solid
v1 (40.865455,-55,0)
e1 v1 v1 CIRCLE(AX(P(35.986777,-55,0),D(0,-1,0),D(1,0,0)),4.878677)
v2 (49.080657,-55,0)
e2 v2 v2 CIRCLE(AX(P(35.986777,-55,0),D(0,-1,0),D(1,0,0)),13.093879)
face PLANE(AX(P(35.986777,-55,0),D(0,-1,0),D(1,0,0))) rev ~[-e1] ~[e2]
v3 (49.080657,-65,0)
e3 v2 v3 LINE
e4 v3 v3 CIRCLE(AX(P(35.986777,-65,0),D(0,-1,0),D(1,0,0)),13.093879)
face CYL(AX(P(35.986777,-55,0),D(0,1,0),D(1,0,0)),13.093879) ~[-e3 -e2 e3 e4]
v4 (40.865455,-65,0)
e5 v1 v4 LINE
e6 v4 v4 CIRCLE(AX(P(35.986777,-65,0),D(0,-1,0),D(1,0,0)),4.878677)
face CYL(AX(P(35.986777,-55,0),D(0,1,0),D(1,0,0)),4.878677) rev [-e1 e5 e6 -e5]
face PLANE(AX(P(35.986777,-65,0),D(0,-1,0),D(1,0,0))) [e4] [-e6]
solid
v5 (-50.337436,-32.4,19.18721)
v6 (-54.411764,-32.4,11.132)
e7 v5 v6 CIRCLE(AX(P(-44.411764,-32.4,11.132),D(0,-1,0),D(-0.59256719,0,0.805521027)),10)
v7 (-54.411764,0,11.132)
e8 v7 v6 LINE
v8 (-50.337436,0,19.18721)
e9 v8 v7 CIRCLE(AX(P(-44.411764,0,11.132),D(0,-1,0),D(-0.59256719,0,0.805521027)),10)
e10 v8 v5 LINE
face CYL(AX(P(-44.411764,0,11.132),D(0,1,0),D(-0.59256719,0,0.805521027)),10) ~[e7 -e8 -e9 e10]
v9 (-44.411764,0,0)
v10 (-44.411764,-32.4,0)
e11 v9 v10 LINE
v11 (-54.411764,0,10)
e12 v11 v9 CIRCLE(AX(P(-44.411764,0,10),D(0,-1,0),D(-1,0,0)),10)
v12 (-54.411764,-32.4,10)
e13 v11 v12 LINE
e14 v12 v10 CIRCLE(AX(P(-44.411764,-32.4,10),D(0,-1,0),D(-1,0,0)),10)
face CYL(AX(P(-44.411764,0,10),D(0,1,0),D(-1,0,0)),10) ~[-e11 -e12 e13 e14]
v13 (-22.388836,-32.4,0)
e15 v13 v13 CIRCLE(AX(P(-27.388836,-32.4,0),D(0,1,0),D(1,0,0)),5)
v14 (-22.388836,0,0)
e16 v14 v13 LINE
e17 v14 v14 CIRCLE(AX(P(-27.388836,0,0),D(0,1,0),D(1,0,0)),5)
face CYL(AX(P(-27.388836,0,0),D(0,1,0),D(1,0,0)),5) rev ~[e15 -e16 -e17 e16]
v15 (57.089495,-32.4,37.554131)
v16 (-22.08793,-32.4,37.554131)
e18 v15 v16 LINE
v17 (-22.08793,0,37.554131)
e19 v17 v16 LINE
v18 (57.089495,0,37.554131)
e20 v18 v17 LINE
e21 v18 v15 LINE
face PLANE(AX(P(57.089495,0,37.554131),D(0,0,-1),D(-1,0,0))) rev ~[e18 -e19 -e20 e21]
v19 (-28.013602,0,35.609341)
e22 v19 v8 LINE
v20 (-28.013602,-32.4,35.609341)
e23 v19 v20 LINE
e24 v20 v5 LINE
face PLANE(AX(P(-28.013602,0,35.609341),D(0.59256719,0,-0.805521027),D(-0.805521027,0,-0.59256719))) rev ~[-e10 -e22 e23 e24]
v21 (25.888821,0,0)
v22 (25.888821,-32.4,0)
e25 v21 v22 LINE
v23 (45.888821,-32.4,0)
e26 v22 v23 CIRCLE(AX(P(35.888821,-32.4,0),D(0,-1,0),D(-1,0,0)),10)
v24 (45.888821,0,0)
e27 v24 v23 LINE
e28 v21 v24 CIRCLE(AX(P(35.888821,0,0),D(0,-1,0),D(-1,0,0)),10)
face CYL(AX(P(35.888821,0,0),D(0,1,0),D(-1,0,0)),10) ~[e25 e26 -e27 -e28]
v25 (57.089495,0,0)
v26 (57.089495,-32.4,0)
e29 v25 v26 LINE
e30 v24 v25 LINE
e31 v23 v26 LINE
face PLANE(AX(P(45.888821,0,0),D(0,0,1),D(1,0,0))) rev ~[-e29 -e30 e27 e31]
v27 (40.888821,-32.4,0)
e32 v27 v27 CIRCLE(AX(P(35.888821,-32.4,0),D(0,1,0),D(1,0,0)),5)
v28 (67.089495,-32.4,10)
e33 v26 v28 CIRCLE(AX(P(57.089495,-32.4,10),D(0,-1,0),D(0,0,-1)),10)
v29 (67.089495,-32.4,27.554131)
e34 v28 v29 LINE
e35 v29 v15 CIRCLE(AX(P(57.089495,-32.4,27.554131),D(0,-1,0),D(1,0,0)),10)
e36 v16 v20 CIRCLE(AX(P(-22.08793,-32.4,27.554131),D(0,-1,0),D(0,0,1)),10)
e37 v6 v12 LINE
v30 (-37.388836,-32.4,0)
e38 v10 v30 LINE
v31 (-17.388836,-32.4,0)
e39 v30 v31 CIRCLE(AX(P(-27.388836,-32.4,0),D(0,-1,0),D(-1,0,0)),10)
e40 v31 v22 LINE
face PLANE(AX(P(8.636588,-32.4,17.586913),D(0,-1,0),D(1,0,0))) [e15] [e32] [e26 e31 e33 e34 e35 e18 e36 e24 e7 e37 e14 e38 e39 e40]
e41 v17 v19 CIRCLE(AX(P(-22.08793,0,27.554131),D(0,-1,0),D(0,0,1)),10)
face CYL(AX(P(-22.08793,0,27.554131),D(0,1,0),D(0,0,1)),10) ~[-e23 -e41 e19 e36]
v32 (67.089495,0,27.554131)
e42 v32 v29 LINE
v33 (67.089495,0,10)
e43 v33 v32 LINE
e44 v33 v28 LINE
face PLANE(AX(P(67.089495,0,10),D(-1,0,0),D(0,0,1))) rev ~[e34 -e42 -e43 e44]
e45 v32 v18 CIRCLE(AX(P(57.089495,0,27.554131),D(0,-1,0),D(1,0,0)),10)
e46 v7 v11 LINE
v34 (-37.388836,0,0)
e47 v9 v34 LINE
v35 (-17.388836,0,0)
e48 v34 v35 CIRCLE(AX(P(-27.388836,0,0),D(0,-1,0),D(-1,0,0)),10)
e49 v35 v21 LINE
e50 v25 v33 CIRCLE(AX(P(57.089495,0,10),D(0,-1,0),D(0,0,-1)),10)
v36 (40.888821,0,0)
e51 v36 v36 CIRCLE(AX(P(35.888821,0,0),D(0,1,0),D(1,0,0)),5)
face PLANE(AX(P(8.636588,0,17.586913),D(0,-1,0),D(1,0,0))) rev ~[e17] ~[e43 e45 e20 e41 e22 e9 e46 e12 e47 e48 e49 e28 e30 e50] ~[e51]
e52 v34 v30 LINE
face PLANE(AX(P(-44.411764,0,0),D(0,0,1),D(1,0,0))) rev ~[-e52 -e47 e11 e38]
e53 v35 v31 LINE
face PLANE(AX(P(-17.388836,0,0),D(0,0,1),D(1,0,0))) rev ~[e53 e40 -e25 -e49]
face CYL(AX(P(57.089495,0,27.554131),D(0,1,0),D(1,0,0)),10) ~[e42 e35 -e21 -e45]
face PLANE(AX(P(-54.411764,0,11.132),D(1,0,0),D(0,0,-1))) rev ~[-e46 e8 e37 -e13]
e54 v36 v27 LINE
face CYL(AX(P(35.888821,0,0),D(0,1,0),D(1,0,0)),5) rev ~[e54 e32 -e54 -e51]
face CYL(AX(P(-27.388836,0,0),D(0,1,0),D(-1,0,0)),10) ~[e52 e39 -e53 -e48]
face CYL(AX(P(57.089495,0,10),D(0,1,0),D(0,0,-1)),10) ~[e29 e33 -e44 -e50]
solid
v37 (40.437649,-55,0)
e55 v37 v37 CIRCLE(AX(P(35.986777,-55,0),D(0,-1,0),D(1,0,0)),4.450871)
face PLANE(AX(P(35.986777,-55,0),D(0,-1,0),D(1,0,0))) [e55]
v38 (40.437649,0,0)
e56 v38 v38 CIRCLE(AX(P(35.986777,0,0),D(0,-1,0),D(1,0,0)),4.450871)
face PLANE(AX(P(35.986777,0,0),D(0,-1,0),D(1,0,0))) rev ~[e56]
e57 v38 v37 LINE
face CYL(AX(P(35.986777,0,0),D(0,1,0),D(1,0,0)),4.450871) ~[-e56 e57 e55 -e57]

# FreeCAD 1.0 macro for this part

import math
import FreeCAD as App
import Part
import Sketcher

V = App.Vector

doc = App.newDocument("Part")
body = doc.addObject("PartDesign::Body", "Body")

# Sketch on XZ plane
sketch1 = body.newObject("Sketcher::SketchObject", "Sketch")
sketch1.AttachmentSupport = (doc.getObject("XZ_Plane"), [""])
sketch1.MapMode = "FlatFace"
sketch1.addGeometry(Part.LineSegment(V(-54.4, 11.1, 0), V(-54.4, 10, 0)), False)
sketch1.addGeometry(Part.ArcOfCircle(Part.Circle(V(-44.4, 10, 0), V(0, 0, 1), 10), math.radians(180), math.radians(270)), False)
sketch1.addGeometry(Part.LineSegment(V(-44.4, 0, 0), V(-37.4, 0, 0)), False)
sketch1.addGeometry(Part.ArcOfCircle(Part.Circle(V(-27.4, 0, 0), V(0, 0, 1), 10), math.radians(180), math.radians(360)), False)
sketch1.addGeometry(Part.LineSegment(V(-17.4, 0, 0), V(25.9, 0, 0)), False)
sketch1.addGeometry(Part.ArcOfCircle(Part.Circle(V(35.9, 0, 0), V(0, 0, 1), 10), math.radians(180), math.radians(360)), False)
sketch1.addGeometry(Part.LineSegment(V(45.9, 0, 0), V(57.1, 0, 0)), False)
sketch1.addGeometry(Part.ArcOfCircle(Part.Circle(V(57.1, 10, 0), V(0, 0, 1), 10), math.radians(-90), math.radians(0)), False)
sketch1.addGeometry(Part.LineSegment(V(67.1, 10, 0), V(67.1, 27.6, 0)), False)
sketch1.addGeometry(Part.ArcOfCircle(Part.Circle(V(57.1, 27.6, 0), V(0, 0, 1), 10), math.radians(0), math.radians(90)), False)
sketch1.addGeometry(Part.LineSegment(V(57.1, 37.6, 0), V(-22.1, 37.6, 0)), False)
sketch1.addGeometry(Part.ArcOfCircle(Part.Circle(V(-22.1, 27.6, 0), V(0, 0, 1), 10), math.radians(90), math.radians(126)), False)
sketch1.addGeometry(Part.LineSegment(V(-28, 35.6, 0), V(-50.3, 19.2, 0)), False)
sketch1.addGeometry(Part.ArcOfCircle(Part.Circle(V(-44.4, 11.1, 0), V(0, 0, 1), 10), math.radians(126), math.radians(180)), False)
sketch1.addGeometry(Part.Circle(V(35.9, 0, 0), V(0, 0, 1), 5), False)
sketch1.addGeometry(Part.Circle(V(-27.4, 0, 0), V(0, 0, 1), 5), False)
sketch1.addConstraint(Sketcher.Constraint("Tangent", 0, 2, 1, 1))
sketch1.addConstraint(Sketcher.Constraint("Tangent", 1, 2, 2, 1))
sketch1.addConstraint(Sketcher.Constraint("Coincident", 2, 2, 3, 1))
sketch1.addConstraint(Sketcher.Constraint("Coincident", 3, 2, 4, 1))
sketch1.addConstraint(Sketcher.Constraint("Coincident", 4, 2, 5, 1))
sketch1.addConstraint(Sketcher.Constraint("Coincident", 5, 2, 6, 1))
sketch1.addConstraint(Sketcher.Constraint("Tangent", 6, 2, 7, 1))
sketch1.addConstraint(Sketcher.Constraint("Tangent", 7, 2, 8, 1))
sketch1.addConstraint(Sketcher.Constraint("Tangent", 8, 2, 9, 1))
sketch1.addConstraint(Sketcher.Constraint("Tangent", 9, 2, 10, 1))
sketch1.addConstraint(Sketcher.Constraint("Tangent", 10, 2, 11, 1))
sketch1.addConstraint(Sketcher.Constraint("Tangent", 11, 2, 12, 1))
sketch1.addConstraint(Sketcher.Constraint("Tangent", 12, 2, 13, 1))
sketch1.addConstraint(Sketcher.Constraint("Tangent", 13, 2, 0, 1))
sketch1.addConstraint(Sketcher.Constraint("Vertical", 0))
sketch1.addConstraint(Sketcher.Constraint("Horizontal", 2))
sketch1.addConstraint(Sketcher.Constraint("Horizontal", 4))
sketch1.addConstraint(Sketcher.Constraint("Horizontal", 6))
sketch1.addConstraint(Sketcher.Constraint("Vertical", 8))
sketch1.addConstraint(Sketcher.Constraint("Horizontal", 10))
sketch1.addConstraint(Sketcher.Constraint("Coincident", 14, 3, 5, 3))
sketch1.addConstraint(Sketcher.Constraint("Coincident", 15, 3, 3, 3))
sketch1.addConstraint(Sketcher.Constraint("Equal", 1, 3))
sketch1.addConstraint(Sketcher.Constraint("Equal", 3, 5))
sketch1.addConstraint(Sketcher.Constraint("Equal", 5, 7))
sketch1.addConstraint(Sketcher.Constraint("Equal", 7, 9))
sketch1.addConstraint(Sketcher.Constraint("Equal", 9, 11))
sketch1.addConstraint(Sketcher.Constraint("Equal", 11, 13))
sketch1.addConstraint(Sketcher.Constraint("Equal", 14, 15))
sketch1.addConstraint(Sketcher.Constraint("PointOnObject", 3, 3, -1))
sketch1.addConstraint(Sketcher.Constraint("PointOnObject", 5, 3, -1))
sketch1.addConstraint(Sketcher.Constraint("PointOnObject", 1, 2, -1))
sketch1.addConstraint(Sketcher.Constraint("PointOnObject", 3, 2, -1))
sketch1.addConstraint(Sketcher.Constraint("PointOnObject", 5, 2, -1))
sketch1.addConstraint(Sketcher.Constraint("Diameter", 14, 10.0))
sketch1.addConstraint(Sketcher.Constraint("Radius", 1, 10.0))
sketch1.addConstraint(Sketcher.Constraint("DistanceY", 0, 2, 0, 1, 1.132))
sketch1.addConstraint(Sketcher.Constraint("DistanceX", 2, 1, 2, 2, 7.022928))
sketch1.addConstraint(Sketcher.Constraint("DistanceY", 8, 1, 8, 2, 17.554131))
sketch1.addConstraint(Sketcher.Constraint("DistanceX", 11, 2, -1, 1, 28.013602))
sketch1.addConstraint(Sketcher.Constraint("DistanceX", 12, 2, 2, 2, 12.9486))
sketch1.addConstraint(Sketcher.Constraint("DistanceX", 4, 1, 4, 2, 43.277657))
sketch1.addConstraint(Sketcher.Constraint("DistanceX", 6, 1, 6, 2, 11.200675))
pad1 = body.newObject("PartDesign::Pad", "Pad")
pad1.Profile = sketch1
pad1.Length = 32.4
body2 = doc.addObject("PartDesign::Body", "Body001")

# Sketch on XZ plane
sketch2 = body2.newObject("Sketcher::SketchObject", "Sketch001")
sketch2.AttachmentSupport = (doc.getObject("XZ_Plane001"), [""])
sketch2.MapMode = "FlatFace"
sketch2.addGeometry(Part.Circle(V(36, 0, 0), V(0, 0, 1), 4.5), False)
sketch2.addConstraint(Sketcher.Constraint("PointOnObject", 0, 3, -1))
sketch2.addConstraint(Sketcher.Constraint("Diameter", 0, 8.901742))
sketch2.addConstraint(Sketcher.Constraint("DistanceX", -1, 1, 0, 3, 35.986777))
pad2 = body2.newObject("PartDesign::Pad", "Pad001")
pad2.Profile = sketch2
pad2.Length = 55
body3 = doc.addObject("PartDesign::Body", "Body002")

# Sketch on XZ plane
sketch3 = body3.newObject("Sketcher::SketchObject", "Sketch002")
sketch3.AttachmentSupport = (doc.getObject("XZ_Plane002"), [""])
sketch3.MapMode = "FlatFace"
sketch3.AttachmentOffset = App.Placement(V(0, 0, 55), App.Rotation())
sketch3.addGeometry(Part.Circle(V(36, 0, 0), V(0, 0, 1), 13.1), False)
sketch3.addGeometry(Part.Circle(V(36, 0, 0), V(0, 0, 1), 4.9), False)
sketch3.addConstraint(Sketcher.Constraint("Coincident", 1, 3, 0, 3))
sketch3.addConstraint(Sketcher.Constraint("PointOnObject", 0, 3, -1))
sketch3.addConstraint(Sketcher.Constraint("Diameter", 0, 26.187759))
sketch3.addConstraint(Sketcher.Constraint("Diameter", 1, 9.757354))
sketch3.addConstraint(Sketcher.Constraint("DistanceX", -1, 1, 0, 3, 35.986777))
pad3 = body3.newObject("PartDesign::Pad", "Pad002")
pad3.Profile = sketch3
pad3.Length = 10

doc.recompute()
